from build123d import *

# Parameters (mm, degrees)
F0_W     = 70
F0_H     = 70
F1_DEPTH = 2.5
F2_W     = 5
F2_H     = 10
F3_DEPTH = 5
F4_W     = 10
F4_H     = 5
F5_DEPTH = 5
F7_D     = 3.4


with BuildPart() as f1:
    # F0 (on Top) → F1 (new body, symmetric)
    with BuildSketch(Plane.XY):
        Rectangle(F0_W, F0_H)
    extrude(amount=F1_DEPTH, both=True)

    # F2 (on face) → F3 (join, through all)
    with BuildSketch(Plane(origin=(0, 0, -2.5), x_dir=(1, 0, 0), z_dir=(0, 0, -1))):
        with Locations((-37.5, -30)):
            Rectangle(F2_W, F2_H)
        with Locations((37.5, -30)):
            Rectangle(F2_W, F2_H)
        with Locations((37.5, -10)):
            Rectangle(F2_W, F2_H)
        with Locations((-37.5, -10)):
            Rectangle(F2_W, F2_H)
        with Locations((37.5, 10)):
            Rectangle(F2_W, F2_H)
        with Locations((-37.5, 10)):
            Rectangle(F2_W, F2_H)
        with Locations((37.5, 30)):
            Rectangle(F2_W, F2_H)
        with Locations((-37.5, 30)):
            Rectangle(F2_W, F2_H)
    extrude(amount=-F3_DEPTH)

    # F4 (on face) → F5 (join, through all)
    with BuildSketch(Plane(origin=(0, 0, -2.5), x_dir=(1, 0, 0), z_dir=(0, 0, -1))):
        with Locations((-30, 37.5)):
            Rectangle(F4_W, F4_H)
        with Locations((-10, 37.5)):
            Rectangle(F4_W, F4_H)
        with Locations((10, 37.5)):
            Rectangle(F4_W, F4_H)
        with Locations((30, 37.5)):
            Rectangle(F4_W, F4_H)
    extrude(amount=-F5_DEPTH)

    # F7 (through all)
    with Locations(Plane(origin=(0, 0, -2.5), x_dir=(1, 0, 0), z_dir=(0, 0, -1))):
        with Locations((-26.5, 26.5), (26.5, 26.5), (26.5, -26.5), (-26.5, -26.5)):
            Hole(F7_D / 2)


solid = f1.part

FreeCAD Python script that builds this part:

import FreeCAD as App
import Part
import Sketcher
from FreeCAD import Vector
Q = App.Units.Quantity


def add_polygon(sketch, points):
    """Adds a closed chain of lines whose ends are joined by coincident constraints."""
    first, n = sketch.GeometryCount, len(points)
    for a, b in zip(points, points[1:] + points[:1]):
        sketch.addGeometry(Part.LineSegment(App.Vector(*a, 0), App.Vector(*b, 0)), False)
    for i in range(n):
        sketch.addConstraint(Sketcher.Constraint("Coincident", first + i, 2, first + (i + 1) % n, 1))

doc = App.newDocument("Part")
body = doc.addObject("PartDesign::Body", "Body")

# Sketch on XY plane
sketch1 = body.newObject("Sketcher::SketchObject", "Sketch")
sketch1.AttachmentSupport = (doc.getObject("XY_Plane"), [""])
sketch1.MapMode = "FlatFace"
add_polygon(sketch1, [(-35, 35), (-35, -35), (35, -35), (35, 35)])  # lines 0-3
sketch1.addConstraint([
    Sketcher.Constraint("Vertical", 0),
    Sketcher.Constraint("Horizontal", 1),
    Sketcher.Constraint("Vertical", 2),
    Sketcher.Constraint("Horizontal", 3),
    Sketcher.Constraint("Symmetric", 0, 2, 2, 2, -1, 1),
    Sketcher.Constraint("Equal", 3, 0),
    Sketcher.Constraint("DistanceX", 1, 1, 1, 2, Q("70 mm")),
])
pad1 = body.newObject("PartDesign::Pad", "Pad")
pad1.Profile = sketch1
pad1.Length = 5
pad1.Midplane = True

# Sketch on XY plane
sketch2 = body.newObject("Sketcher::SketchObject", "Sketch001")
sketch2.AttachmentSupport = (doc.getObject("XY_Plane"), [""])
sketch2.MapMode = "FlatFace"
sketch2.AttachmentOffset = App.Placement(Vector(0, 0, -2.5), App.Rotation())
add_polygon(sketch2, [(-40, 25), (-40, 35), (-35, 35), (-35, 25)])  # lines 0-3
add_polygon(sketch2, [(35, 25), (35, 35), (40, 35), (40, 25)])  # lines 4-7
add_polygon(sketch2, [(35, 5), (35, 15), (40, 15), (40, 5)])  # lines 8-11
add_polygon(sketch2, [(-40, 5), (-40, 15), (-35, 15), (-35, 5)])  # lines 12-15
add_polygon(sketch2, [(35, -15), (35, -5), (40, -5), (40, -15)])  # lines 16-19
add_polygon(sketch2, [(-40, -15), (-40, -5), (-35, -5), (-35, -15)])  # lines 20-23
add_polygon(sketch2, [(35, -35), (35, -25), (40, -25), (40, -35)])  # lines 24-27
add_polygon(sketch2, [(-40, -35), (-40, -25), (-35, -25), (-35, -35)])  # lines 28-31
sketch2.addConstraint([
    Sketcher.Constraint("Vertical", 0),
    Sketcher.Constraint("Horizontal", 1),
    Sketcher.Constraint("Vertical", 2),
    Sketcher.Constraint("Horizontal", 3),
    Sketcher.Constraint("Vertical", 4),
    Sketcher.Constraint("Horizontal", 5),
    Sketcher.Constraint("Vertical", 6),
    Sketcher.Constraint("Horizontal", 7),
    Sketcher.Constraint("Vertical", 8),
    Sketcher.Constraint("Horizontal", 9),
    Sketcher.Constraint("Vertical", 10),
    Sketcher.Constraint("Horizontal", 11),
    Sketcher.Constraint("Vertical", 12),
    Sketcher.Constraint("Horizontal", 13),
    Sketcher.Constraint("Vertical", 14),
    Sketcher.Constraint("Horizontal", 15),
    Sketcher.Constraint("Vertical", 16),
    Sketcher.Constraint("Horizontal", 17),
    Sketcher.Constraint("Vertical", 18),
    Sketcher.Constraint("Horizontal", 19),
    Sketcher.Constraint("Vertical", 20),
    Sketcher.Constraint("Horizontal", 21),
    Sketcher.Constraint("Vertical", 22),
    Sketcher.Constraint("Horizontal", 23),
    Sketcher.Constraint("Vertical", 24),
    Sketcher.Constraint("Horizontal", 25),
    Sketcher.Constraint("Vertical", 26),
    Sketcher.Constraint("Horizontal", 27),
    Sketcher.Constraint("Vertical", 28),
    Sketcher.Constraint("Horizontal", 29),
    Sketcher.Constraint("Vertical", 30),
    Sketcher.Constraint("Horizontal", 31),
    Sketcher.Constraint("Symmetric", 14, 2, 16, 2, -1, 1),
    Sketcher.Constraint("Symmetric", 12, 2, 18, 2, -1, 1),
    Sketcher.Constraint("Symmetric", 10, 2, 20, 2, -1, 1),
    Sketcher.Constraint("Symmetric", 8, 2, 22, 2, -1, 1),
    Sketcher.Constraint("Symmetric", 2, 2, 24, 2, -1, 1),
    Sketcher.Constraint("Symmetric", 0, 2, 26, 2, -1, 1),
    Sketcher.Constraint("Symmetric", 6, 2, 28, 2, -1, 1),
    Sketcher.Constraint("Symmetric", 4, 2, 30, 2, -1, 1),
    Sketcher.Constraint("Symmetric", 1, 2, 4, 2, -2),
    Sketcher.Constraint("Symmetric", 3, 2, 6, 2, -2),
    Sketcher.Constraint("Symmetric", 9, 2, 12, 2, -2),
    Sketcher.Constraint("Symmetric", 11, 2, 14, 2, -2),
    Sketcher.Constraint("Vertical", 7, 2, 8, 2),
    Sketcher.Constraint("Vertical", 6, 2, 9, 2),
    Sketcher.Constraint("Equal", 6, 8),
    Sketcher.Constraint("DistanceX", 1, 1, 1, 2, Q("5 mm")),
    Sketcher.Constraint("DistanceY", 0, 1, 0, 2, Q("10 mm")),
    Sketcher.Constraint("DistanceX", 0, 2, -1, 1, Q("40 mm")),
    Sketcher.Constraint("DistanceY", -1, 1, 0, 2, Q("35 mm")),
    Sketcher.Constraint("DistanceY", -1, 1, 8, 2, Q("15 mm")),
])
pad2 = body.newObject("PartDesign::Pad", "Pad001")
pad2.Profile = sketch2
pad2.Type = "UpToLast"

# Sketch on XY plane
sketch3 = body.newObject("Sketcher::SketchObject", "Sketch002")
sketch3.AttachmentSupport = (doc.getObject("XY_Plane"), [""])
sketch3.MapMode = "FlatFace"
sketch3.AttachmentOffset = App.Placement(Vector(0, 0, -2.5), App.Rotation())
add_polygon(sketch3, [(-35, -40), (-35, -35), (-25, -35), (-25, -40)])  # lines 0-3
add_polygon(sketch3, [(-15, -40), (-15, -35), (-5, -35), (-5, -40)])  # lines 4-7
add_polygon(sketch3, [(5, -40), (5, -35), (15, -35), (15, -40)])  # lines 8-11
add_polygon(sketch3, [(25, -40), (25, -35), (35, -35), (35, -40)])  # lines 12-15
sketch3.addConstraint([
    Sketcher.Constraint("Vertical", 0),
    Sketcher.Constraint("Horizontal", 1),
    Sketcher.Constraint("Vertical", 2),
    Sketcher.Constraint("Horizontal", 3),
    Sketcher.Constraint("Vertical", 4),
    Sketcher.Constraint("Horizontal", 5),
    Sketcher.Constraint("Vertical", 6),
    Sketcher.Constraint("Horizontal", 7),
    Sketcher.Constraint("Vertical", 8),
    Sketcher.Constraint("Horizontal", 9),
    Sketcher.Constraint("Vertical", 10),
    Sketcher.Constraint("Horizontal", 11),
    Sketcher.Constraint("Vertical", 12),
    Sketcher.Constraint("Horizontal", 13),
    Sketcher.Constraint("Vertical", 14),
    Sketcher.Constraint("Horizontal", 15),
    Sketcher.Constraint("Symmetric", 5, 2, 8, 2, -2),
    Sketcher.Constraint("Symmetric", 7, 2, 10, 2, -2),
    Sketcher.Constraint("Symmetric", 1, 2, 12, 2, -2),
    Sketcher.Constraint("Symmetric", 3, 2, 14, 2, -2),
    Sketcher.Constraint("Horizontal", 1, 2, 4, 2),
    Sketcher.Constraint("Horizontal", 3, 2, 6, 2),
    Sketcher.Constraint("Equal", 3, 5),
    Sketcher.Constraint("DistanceX", 1, 1, 1, 2, Q("10 mm")),
    Sketcher.Constraint("DistanceY", 0, 1, 0, 2, Q("5 mm")),
    Sketcher.Constraint("DistanceX", 0, 2, -1, 1, Q("35 mm")),
    Sketcher.Constraint("DistanceY", 0, 2, -1, 1, Q("35 mm")),
    Sketcher.Constraint("DistanceX", 4, 2, -1, 1, Q("15 mm")),
])
pad3 = body.newObject("PartDesign::Pad", "Pad002")
pad3.Profile = sketch3
pad3.Length = 5

# Sketch on XY plane
sketch4 = body.newObject("Sketcher::SketchObject", "Sketch003")
sketch4.AttachmentSupport = (doc.getObject("XY_Plane"), [""])
sketch4.MapMode = "FlatFace"
sketch4.AttachmentOffset = App.Placement(Vector(0, 0, -2.5), App.Rotation())
sketch4.addGeometry([
    Part.Circle(Vector(-26.5, -26.5, 0), Vector(0, 0, 1), 1.7),
    Part.Circle(Vector(26.5, -26.5, 0), Vector(0, 0, 1), 1.7),
    Part.Circle(Vector(26.5, 26.5, 0), Vector(0, 0, 1), 1.7),
    Part.Circle(Vector(-26.5, 26.5, 0), Vector(0, 0, 1), 1.7),
], False)
sketch4.addConstraint([
    Sketcher.Constraint("Equal", 0, 1),
    Sketcher.Constraint("Equal", 1, 2),
    Sketcher.Constraint("Equal", 2, 3),
    Sketcher.Constraint("Symmetric", 0, 3, 2, 3, -1, 1),
    Sketcher.Constraint("Symmetric", 1, 3, 3, 3, -1, 1),
    Sketcher.Constraint("Symmetric", 0, 3, 1, 3, -2),
    Sketcher.Constraint("Diameter", 0, Q("3.4 mm")),
    Sketcher.Constraint("DistanceX", 0, 3, 1, 3, Q("53 mm")),
    Sketcher.Constraint("DistanceY", 1, 3, 2, 3, Q("53 mm")),
])
doc.recompute()
hole = body.newObject("PartDesign::Hole", "Hole")
hole.Profile = sketch4
hole.ThreadType = "None"
hole.Diameter = 3.4
hole.DepthType = "ThroughAll"
hole.Reversed = True

doc.recompute()
